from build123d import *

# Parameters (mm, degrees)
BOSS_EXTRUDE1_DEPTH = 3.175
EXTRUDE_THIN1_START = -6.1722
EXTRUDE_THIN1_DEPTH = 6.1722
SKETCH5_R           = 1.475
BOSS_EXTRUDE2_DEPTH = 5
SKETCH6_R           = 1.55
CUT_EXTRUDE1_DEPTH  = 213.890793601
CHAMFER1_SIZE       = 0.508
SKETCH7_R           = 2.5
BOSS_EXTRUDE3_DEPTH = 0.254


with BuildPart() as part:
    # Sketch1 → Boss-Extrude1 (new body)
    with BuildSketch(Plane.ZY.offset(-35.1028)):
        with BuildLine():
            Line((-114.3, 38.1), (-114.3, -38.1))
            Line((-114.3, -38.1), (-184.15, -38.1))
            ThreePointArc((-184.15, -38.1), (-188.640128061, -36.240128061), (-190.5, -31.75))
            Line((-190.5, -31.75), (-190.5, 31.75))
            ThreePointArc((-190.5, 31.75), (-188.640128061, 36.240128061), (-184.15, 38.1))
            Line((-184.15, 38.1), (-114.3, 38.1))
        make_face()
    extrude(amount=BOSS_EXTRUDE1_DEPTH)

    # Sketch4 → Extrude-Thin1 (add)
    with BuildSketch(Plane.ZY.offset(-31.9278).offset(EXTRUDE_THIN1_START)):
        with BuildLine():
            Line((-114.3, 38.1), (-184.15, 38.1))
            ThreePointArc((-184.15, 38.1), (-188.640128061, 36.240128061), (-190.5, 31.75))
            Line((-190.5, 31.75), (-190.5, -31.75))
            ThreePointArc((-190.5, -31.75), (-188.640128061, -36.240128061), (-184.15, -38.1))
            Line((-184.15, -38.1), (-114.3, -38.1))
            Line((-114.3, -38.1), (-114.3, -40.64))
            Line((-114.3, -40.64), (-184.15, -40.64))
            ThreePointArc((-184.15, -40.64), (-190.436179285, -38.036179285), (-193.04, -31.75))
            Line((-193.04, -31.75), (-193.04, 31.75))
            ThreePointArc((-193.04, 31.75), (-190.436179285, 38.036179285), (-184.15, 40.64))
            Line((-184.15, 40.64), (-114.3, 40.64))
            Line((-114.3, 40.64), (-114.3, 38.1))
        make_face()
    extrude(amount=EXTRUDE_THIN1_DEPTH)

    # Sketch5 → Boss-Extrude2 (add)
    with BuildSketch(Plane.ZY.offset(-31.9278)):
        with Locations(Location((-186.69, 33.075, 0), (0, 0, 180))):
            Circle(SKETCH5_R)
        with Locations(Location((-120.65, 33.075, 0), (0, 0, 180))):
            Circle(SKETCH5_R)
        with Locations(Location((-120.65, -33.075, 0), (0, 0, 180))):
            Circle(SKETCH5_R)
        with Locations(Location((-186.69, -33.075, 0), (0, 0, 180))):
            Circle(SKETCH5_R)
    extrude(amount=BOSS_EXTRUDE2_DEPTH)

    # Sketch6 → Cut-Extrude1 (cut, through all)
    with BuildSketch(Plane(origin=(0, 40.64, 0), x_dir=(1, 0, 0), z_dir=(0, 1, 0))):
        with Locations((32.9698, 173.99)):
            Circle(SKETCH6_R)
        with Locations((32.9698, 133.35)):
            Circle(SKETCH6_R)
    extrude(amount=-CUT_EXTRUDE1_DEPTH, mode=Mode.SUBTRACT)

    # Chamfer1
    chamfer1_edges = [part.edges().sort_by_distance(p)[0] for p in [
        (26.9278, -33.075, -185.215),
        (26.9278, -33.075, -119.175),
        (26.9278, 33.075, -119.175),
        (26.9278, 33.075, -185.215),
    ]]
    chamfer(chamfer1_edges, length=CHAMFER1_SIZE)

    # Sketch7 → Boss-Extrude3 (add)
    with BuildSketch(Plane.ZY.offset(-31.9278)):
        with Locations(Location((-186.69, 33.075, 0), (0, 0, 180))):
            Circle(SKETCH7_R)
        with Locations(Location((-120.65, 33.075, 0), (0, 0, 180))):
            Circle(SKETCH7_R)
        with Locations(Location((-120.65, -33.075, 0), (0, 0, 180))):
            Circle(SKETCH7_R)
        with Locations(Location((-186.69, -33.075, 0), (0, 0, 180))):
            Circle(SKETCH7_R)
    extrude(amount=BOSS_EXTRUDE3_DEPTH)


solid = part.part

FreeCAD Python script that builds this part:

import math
import FreeCAD as App
import Part
import Sketcher

V = App.Vector
Q = App.Units.Quantity


def edges_at(feature, points):
    """Names of the edges that pass closest to the given points."""
    edges = feature.Shape.Edges
    near = lambda p: min(range(len(edges)), key=lambda i: edges[i].distToShape(Part.Vertex(*p))[0])
    return sorted({f"Edge{near(p) + 1}" for p in points})

doc = App.newDocument("Part")
body = doc.addObject("PartDesign::Body", "Body")

# Sketch on YZ plane
sketch1 = doc.addObject("Sketcher::SketchObject", "Sketch")
body.addObject(sketch1)
sketch1.AttachmentSupport = (doc.YZ_Plane, [""])
sketch1.MapMode = "FlatFace"
sketch1.AttachmentOffset = App.Placement(V(0, 0, 1.382 * 25.4), App.Rotation())
sketch1.addGeometry([
    Part.LineSegment(V(-38, -114, 0), V(38, -114, 0)),  # 0
    Part.LineSegment(V(38, -114, 0), V(38, -184, 0)),  # 1
    Part.ArcOfCircle(Part.Circle(V(32, -184, 0), V(0, 0, 1), 6), math.radians(-90), math.radians(0)),  # 2
    Part.LineSegment(V(32, -190, 0), V(-32, -190, 0)),  # 3
    Part.ArcOfCircle(Part.Circle(V(-32, -184, 0), V(0, 0, 1), 6), math.radians(180), math.radians(270)),  # 4
    Part.LineSegment(V(-38, -184, 0), V(-38, -114, 0)),  # 5
], False)
sketch1.addConstraint([
    Sketcher.Constraint("Coincident", 0, 2, 1, 1),
    Sketcher.Constraint("Tangent", 1, 2, 2, 2),
    Sketcher.Constraint("Tangent", 2, 1, 3, 1),
    Sketcher.Constraint("Tangent", 3, 2, 4, 2),
    Sketcher.Constraint("Tangent", 4, 1, 5, 1),
    Sketcher.Constraint("Coincident", 5, 2, 0, 1),
    Sketcher.Constraint("Horizontal", 0),
    Sketcher.Constraint("Vertical", 1),
    Sketcher.Constraint("Horizontal", 3),
    Sketcher.Constraint("Vertical", 5),
    Sketcher.Constraint("Equal", 2, 4),
    Sketcher.Constraint("DistanceX", 0, 1, 0, 2, Q("3 in")),
    Sketcher.Constraint("Radius", 2, Q("0.25 in")),
    Sketcher.Constraint("DistanceY", 2, 1, 0, 2, Q("3 in")),
    Sketcher.Constraint("DistanceX", -1, 1, 0, 2, Q("1.5 in")),
    Sketcher.Constraint("DistanceY", 0, 2, -1, 1, Q("4.5 in")),
])
pad1 = doc.addObject("PartDesign::Pad", "Pad")
body.addObject(pad1)
pad1.Profile = sketch1
pad1.Length = Q("0.125 in")
pad1.Reversed = True

# Sketch on YZ plane
sketch2 = doc.addObject("Sketcher::SketchObject", "Sketch001")
body.addObject(sketch2)
sketch2.AttachmentSupport = (doc.YZ_Plane, [""])
sketch2.MapMode = "FlatFace"
sketch2.AttachmentOffset = App.Placement(V(0, 0, 1.5 * 25.4), App.Rotation())
sketch2.addGeometry([
    Part.LineSegment(V(38.1, -184.2, 0), V(38.1, -114.3, 0)),  # 0
    Part.LineSegment(V(38.1, -114.3, 0), V(40.6, -114.3, 0)),  # 1
    Part.LineSegment(V(40.6, -114.3, 0), V(40.6, -184.2, 0)),  # 2
    Part.ArcOfCircle(Part.Circle(V(31.8, -184.2, 0), V(0, 0, 1), 8.9), math.radians(-90), math.radians(0)),  # 3
    Part.LineSegment(V(31.8, -193, 0), V(-31.8, -193, 0)),  # 4
    Part.ArcOfCircle(Part.Circle(V(-31.8, -184.2, 0), V(0, 0, 1), 8.9), math.radians(180), math.radians(270)),  # 5
    Part.LineSegment(V(-40.6, -184.2, 0), V(-40.6, -114.3, 0)),  # 6
    Part.LineSegment(V(-40.6, -114.3, 0), V(-38.1, -114.3, 0)),  # 7
    Part.LineSegment(V(-38.1, -114.3, 0), V(-38.1, -184.2, 0)),  # 8
    Part.ArcOfCircle(Part.Circle(V(-31.8, -184.2, 0), V(0, 0, 1), 6.3), math.radians(180), math.radians(270)),  # 9
    Part.LineSegment(V(-31.8, -190.5, 0), V(31.8, -190.5, 0)),  # 10
    Part.ArcOfCircle(Part.Circle(V(31.8, -184.2, 0), V(0, 0, 1), 6.3), math.radians(-90), math.radians(0)),  # 11
], False)
sketch2.addConstraint([
    Sketcher.Constraint("Coincident", 0, 2, 1, 1),
    Sketcher.Constraint("Coincident", 1, 2, 2, 1),
    Sketcher.Constraint("Tangent", 2, 2, 3, 2),
    Sketcher.Constraint("Tangent", 3, 1, 4, 1),
    Sketcher.Constraint("Tangent", 4, 2, 5, 2),
    Sketcher.Constraint("Tangent", 5, 1, 6, 1),
    Sketcher.Constraint("Coincident", 6, 2, 7, 1),
    Sketcher.Constraint("Coincident", 7, 2, 8, 1),
    Sketcher.Constraint("Tangent", 8, 2, 9, 1),
    Sketcher.Constraint("Tangent", 9, 2, 10, 1),
    Sketcher.Constraint("Tangent", 10, 2, 11, 1),
    Sketcher.Constraint("Tangent", 11, 2, 0, 1),
    Sketcher.Constraint("Vertical", 0),
    Sketcher.Constraint("Horizontal", 1),
    Sketcher.Constraint("Vertical", 2),
    Sketcher.Constraint("Horizontal", 4),
    Sketcher.Constraint("Vertical", 6),
    Sketcher.Constraint("Horizontal", 7),
    Sketcher.Constraint("Vertical", 8),
    Sketcher.Constraint("Horizontal", 10),
    Sketcher.Constraint("Coincident", 9, 3, 5, 3),
    Sketcher.Constraint("Coincident", 11, 3, 3, 3),
    Sketcher.Constraint("Equal", 3, 5),
    Sketcher.Constraint("Symmetric", 1, 2, 6, 2, -2),
    Sketcher.Constraint("Radius", 3, Q("0.35 in")),
    Sketcher.Constraint("Radius", 9, Q("0.25 in")),
    Sketcher.Constraint("DistanceX", 4, 2, 4, 1, Q("2.5 in")),
    Sketcher.Constraint("DistanceY", 0, 1, 0, 2, Q("2.75 in")),
    Sketcher.Constraint("DistanceY", 0, 2, -1, 1, Q("4.5 in")),
])
pad2 = doc.addObject("PartDesign::Pad", "Pad001")
body.addObject(pad2)
pad2.Profile = sketch2
pad2.Length = Q("0.243 in")
pad2.Reversed = True

# Sketch on YZ plane
sketch3 = doc.addObject("Sketcher::SketchObject", "Sketch002")
body.addObject(sketch3)
sketch3.AttachmentSupport = (doc.YZ_Plane, [""])
sketch3.MapMode = "FlatFace"
sketch3.AttachmentOffset = App.Placement(V(0, 0, 1.257 * 25.4), App.Rotation())
sketch3.addGeometry([
    Part.Circle(V(33.1, -186.7, 0), V(0, 0, 1), 1.5),
    Part.Circle(V(33.1, -120.7, 0), V(0, 0, 1), 1.5),
    Part.Circle(V(-33.1, -120.7, 0), V(0, 0, 1), 1.5),
    Part.Circle(V(-33.1, -186.7, 0), V(0, 0, 1), 1.5),
], False)
sketch3.addConstraint([
    Sketcher.Constraint("Equal", 0, 1),
    Sketcher.Constraint("Equal", 1, 2),
    Sketcher.Constraint("Equal", 2, 3),
    Sketcher.Constraint("Symmetric", 1, 3, 2, 3, -2),
    Sketcher.Constraint("Symmetric", 0, 3, 3, 3, -2),
    Sketcher.Constraint("Vertical", 0, 3, 1, 3),
    Sketcher.Constraint("DistanceY", 0, 3, 1, 3, Q("2.6 in")),
    Sketcher.Constraint("Diameter", 0, 2.95),
    Sketcher.Constraint("DistanceY", 0, 3, -1, 1, Q("7.35 in")),
    Sketcher.Constraint("DistanceX", -1, 1, 0, 3, 33.075),
])
pad3 = doc.addObject("PartDesign::Pad", "Pad002")
body.addObject(pad3)
pad3.Profile = sketch3
pad3.Length = 5
pad3.Reversed = True

# Sketch on XZ plane
sketch4 = doc.addObject("Sketcher::SketchObject", "Sketch003")
body.addObject(sketch4)
sketch4.AttachmentSupport = (doc.XZ_Plane, [""])
sketch4.MapMode = "FlatFace"
sketch4.AttachmentOffset = App.Placement(V(0, 0, -1.6 * 25.4), App.Rotation())
sketch4.addGeometry([
    Part.Circle(V(33, -174, 0), V(0, 0, 1), 1.6),
    Part.Circle(V(33, -133.3, 0), V(0, 0, 1), 1.6),
], False)
sketch4.addConstraint([
    Sketcher.Constraint("Equal", 0, 1),
    Sketcher.Constraint("Vertical", 0, 3, 1, 3),
    Sketcher.Constraint("DistanceY", 0, 3, 1, 3, Q("1.6 in")),
    Sketcher.Constraint("Diameter", 0, 3.1),
    Sketcher.Constraint("DistanceY", 0, 3, -1, 1, Q("6.85 in")),
    Sketcher.Constraint("DistanceX", -1, 1, 0, 3, 32.9698),
])
pocket1 = doc.addObject("PartDesign::Pocket", "Pocket")
body.addObject(pocket1)
pocket1.Profile = sketch4
pocket1.Type = "ThroughAll"
pocket1.Reversed = True
doc.recompute()

chamfer = doc.addObject("PartDesign::Chamfer", "Chamfer")
body.addObject(chamfer)
chamfer.Base = (pocket1, edges_at(pocket1, [
    (26.928, -33.075, -185.215),
    (26.928, -33.075, -119.175),
    (26.928, 33.075, -119.175),
    (26.928, 33.075, -185.215),
]))
chamfer.Size = Q("0.02 in")

# Sketch on YZ plane
sketch5 = doc.addObject("Sketcher::SketchObject", "Sketch004")
body.addObject(sketch5)
sketch5.AttachmentSupport = (doc.YZ_Plane, [""])
sketch5.MapMode = "FlatFace"
sketch5.AttachmentOffset = App.Placement(V(0, 0, 1.257 * 25.4), App.Rotation())
sketch5.addGeometry([
    Part.Circle(V(33.1, -186.7, 0), V(0, 0, 1), 2.5),
    Part.Circle(V(33.1, -120.7, 0), V(0, 0, 1), 2.5),
    Part.Circle(V(-33.1, -120.7, 0), V(0, 0, 1), 2.5),
    Part.Circle(V(-33.1, -186.7, 0), V(0, 0, 1), 2.5),
], False)
sketch5.addConstraint([
    Sketcher.Constraint("Equal", 0, 1),
    Sketcher.Constraint("Equal", 1, 2),
    Sketcher.Constraint("Equal", 2, 3),
    Sketcher.Constraint("Symmetric", 1, 3, 2, 3, -2),
    Sketcher.Constraint("Symmetric", 0, 3, 3, 3, -2),
    Sketcher.Constraint("Vertical", 0, 3, 1, 3),
    Sketcher.Constraint("DistanceY", 0, 3, 1, 3, Q("2.6 in")),
    Sketcher.Constraint("Diameter", 0, 5.0),
    Sketcher.Constraint("DistanceY", 0, 3, -1, 1, Q("7.35 in")),
    Sketcher.Constraint("DistanceX", -1, 1, 0, 3, 33.075),
])
pad4 = doc.addObject("PartDesign::Pad", "Pad003")
body.addObject(pad4)
pad4.Profile = sketch5
pad4.Length = Q("0.01 in")
pad4.Reversed = True

doc.recompute()
